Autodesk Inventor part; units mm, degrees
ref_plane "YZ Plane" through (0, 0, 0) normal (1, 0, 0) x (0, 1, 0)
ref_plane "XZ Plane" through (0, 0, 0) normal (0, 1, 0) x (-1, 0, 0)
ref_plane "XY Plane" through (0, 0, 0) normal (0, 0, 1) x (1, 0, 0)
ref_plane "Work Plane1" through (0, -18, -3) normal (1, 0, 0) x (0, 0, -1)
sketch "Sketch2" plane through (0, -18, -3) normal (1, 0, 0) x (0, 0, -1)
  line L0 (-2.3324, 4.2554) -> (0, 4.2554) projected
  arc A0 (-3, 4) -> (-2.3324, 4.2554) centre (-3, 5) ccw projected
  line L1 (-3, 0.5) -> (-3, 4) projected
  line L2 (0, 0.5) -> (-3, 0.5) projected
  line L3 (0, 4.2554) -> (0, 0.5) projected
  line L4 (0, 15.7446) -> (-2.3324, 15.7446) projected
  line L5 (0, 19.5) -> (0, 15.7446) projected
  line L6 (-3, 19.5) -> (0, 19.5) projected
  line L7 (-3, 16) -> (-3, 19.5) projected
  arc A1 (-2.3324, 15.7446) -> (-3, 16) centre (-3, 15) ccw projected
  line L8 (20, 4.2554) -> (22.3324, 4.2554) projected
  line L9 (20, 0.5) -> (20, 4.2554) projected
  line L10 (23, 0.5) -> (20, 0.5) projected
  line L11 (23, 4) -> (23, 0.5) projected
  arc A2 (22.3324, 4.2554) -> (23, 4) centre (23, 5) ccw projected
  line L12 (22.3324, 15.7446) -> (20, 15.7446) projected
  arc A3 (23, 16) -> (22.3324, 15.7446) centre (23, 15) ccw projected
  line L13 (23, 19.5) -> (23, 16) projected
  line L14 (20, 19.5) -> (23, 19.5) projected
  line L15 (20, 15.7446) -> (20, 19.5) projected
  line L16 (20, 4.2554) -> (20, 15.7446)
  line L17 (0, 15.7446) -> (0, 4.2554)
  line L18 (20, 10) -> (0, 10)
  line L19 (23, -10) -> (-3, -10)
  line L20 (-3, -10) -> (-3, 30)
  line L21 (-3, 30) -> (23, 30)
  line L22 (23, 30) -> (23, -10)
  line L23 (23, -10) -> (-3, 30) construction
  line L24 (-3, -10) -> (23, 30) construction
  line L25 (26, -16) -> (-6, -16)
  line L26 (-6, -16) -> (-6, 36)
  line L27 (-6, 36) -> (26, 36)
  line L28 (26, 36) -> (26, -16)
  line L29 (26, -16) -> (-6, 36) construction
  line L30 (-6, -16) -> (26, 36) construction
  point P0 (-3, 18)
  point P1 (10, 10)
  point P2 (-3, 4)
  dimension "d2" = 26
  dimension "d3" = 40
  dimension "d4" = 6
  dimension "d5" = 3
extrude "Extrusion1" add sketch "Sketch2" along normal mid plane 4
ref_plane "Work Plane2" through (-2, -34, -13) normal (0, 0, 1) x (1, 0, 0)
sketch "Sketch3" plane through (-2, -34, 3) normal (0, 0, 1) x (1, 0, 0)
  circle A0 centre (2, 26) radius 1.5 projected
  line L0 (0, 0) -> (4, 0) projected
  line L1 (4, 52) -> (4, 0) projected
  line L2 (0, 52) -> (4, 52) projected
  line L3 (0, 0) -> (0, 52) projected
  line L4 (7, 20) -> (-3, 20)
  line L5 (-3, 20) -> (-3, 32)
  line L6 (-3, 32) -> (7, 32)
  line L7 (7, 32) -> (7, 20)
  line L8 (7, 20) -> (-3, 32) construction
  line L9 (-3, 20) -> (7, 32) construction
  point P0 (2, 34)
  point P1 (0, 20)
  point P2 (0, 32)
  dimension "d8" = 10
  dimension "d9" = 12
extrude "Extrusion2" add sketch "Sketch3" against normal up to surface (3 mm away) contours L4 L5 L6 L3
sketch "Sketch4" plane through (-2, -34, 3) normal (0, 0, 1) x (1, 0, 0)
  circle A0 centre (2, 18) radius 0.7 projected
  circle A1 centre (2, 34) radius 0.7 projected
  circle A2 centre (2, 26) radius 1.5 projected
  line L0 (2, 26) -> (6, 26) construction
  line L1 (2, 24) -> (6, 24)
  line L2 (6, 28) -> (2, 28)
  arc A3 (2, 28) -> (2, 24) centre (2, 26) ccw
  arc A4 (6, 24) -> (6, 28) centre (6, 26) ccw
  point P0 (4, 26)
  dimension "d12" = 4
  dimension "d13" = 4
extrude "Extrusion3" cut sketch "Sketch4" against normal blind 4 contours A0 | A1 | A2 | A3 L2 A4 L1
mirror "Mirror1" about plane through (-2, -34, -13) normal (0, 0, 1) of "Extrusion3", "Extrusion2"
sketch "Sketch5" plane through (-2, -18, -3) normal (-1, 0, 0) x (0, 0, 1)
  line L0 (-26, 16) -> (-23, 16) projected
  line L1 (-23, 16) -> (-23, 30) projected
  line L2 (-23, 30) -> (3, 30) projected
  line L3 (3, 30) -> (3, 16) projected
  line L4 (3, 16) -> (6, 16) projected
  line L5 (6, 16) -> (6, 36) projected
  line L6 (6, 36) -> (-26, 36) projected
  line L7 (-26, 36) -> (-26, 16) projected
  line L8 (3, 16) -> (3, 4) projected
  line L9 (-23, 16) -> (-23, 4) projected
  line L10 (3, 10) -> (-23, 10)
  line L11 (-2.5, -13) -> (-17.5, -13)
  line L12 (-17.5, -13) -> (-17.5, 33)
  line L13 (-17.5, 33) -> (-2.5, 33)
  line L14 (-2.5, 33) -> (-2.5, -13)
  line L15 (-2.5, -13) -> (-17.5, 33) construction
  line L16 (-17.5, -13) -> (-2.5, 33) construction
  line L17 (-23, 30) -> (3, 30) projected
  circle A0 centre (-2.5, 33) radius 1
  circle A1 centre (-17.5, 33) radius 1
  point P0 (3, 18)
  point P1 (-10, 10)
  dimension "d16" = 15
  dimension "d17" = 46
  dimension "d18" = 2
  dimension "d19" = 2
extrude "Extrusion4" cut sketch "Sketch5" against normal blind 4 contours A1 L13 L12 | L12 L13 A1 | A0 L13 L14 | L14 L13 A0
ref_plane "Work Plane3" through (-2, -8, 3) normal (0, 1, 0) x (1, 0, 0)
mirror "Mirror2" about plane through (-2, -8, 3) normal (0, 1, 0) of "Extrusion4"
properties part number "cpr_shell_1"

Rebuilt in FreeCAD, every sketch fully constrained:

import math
import FreeCAD as App
import Part
import Sketcher

V = App.Vector
Q = App.Units.Quantity


def add_polygon(sketch, points):
    """Adds a closed chain of lines whose ends are joined by coincident constraints."""
    first, n = sketch.GeometryCount, len(points)
    for a, b in zip(points, points[1:] + points[:1]):
        sketch.addGeometry(Part.LineSegment(App.Vector(*a, 0), App.Vector(*b, 0)), False)
    for i in range(n):
        sketch.addConstraint(Sketcher.Constraint("Coincident", first + i, 2, first + (i + 1) % n, 1))

doc = App.newDocument("Part")
body = doc.addObject("PartDesign::Body", "Body")

# Sketch on YZ plane
sketch1 = doc.addObject("Sketcher::SketchObject", "Sketch")
body.addObject(sketch1)
sketch1.AttachmentSupport = (doc.YZ_Plane, [""])
sketch1.MapMode = "FlatFace"
add_polygon(sketch1, [(-34, 3), (-34, -29), (18, -29), (18, 3)])  # lines 0-3
add_polygon(sketch1, [(-28, 0), (12, 0), (12, -26), (-28, -26)])  # lines 4-7
sketch1.addConstraint([
    Sketcher.Constraint("Vertical", 0),
    Sketcher.Constraint("Horizontal", 1),
    Sketcher.Constraint("Vertical", 2),
    Sketcher.Constraint("Horizontal", 3),
    Sketcher.Constraint("Horizontal", 4),
    Sketcher.Constraint("Vertical", 5),
    Sketcher.Constraint("Horizontal", 6),
    Sketcher.Constraint("Vertical", 7),
    Sketcher.Constraint("PointOnObject", 4, 2, -1),
    Sketcher.Constraint("DistanceX", 4, 1, 4, 2, Q("40 mm")),
    Sketcher.Constraint("DistanceY", 5, 2, 5, 1, Q("26 mm")),
    Sketcher.Constraint("DistanceY", -1, 1, 2, 2, Q("3 mm")),
    Sketcher.Constraint("DistanceX", 4, 2, 2, 2, Q("6 mm")),
    Sketcher.Constraint("DistanceY", 1, 2, 5, 2, Q("3 mm")),
    Sketcher.Constraint("DistanceX", 0, 2, 6, 2, Q("6 mm")),
    Sketcher.Constraint("DistanceX", 0, 2, -1, 1, Q("34 mm")),
])
pad1 = doc.addObject("PartDesign::Pad", "Pad")
body.addObject(pad1)
pad1.Profile = sketch1
pad1.Length = 4
pad1.Midplane = True

# Sketch on XY plane
sketch2 = doc.addObject("Sketcher::SketchObject", "Sketch001")
body.addObject(sketch2)
sketch2.AttachmentSupport = (doc.XY_Plane, [""])
sketch2.MapMode = "FlatFace"
sketch2.AttachmentOffset = App.Placement(V(0, 0, 3), App.Rotation())
add_polygon(sketch2, [(-5, -14), (-2, -14), (-2, -2), (-5, -2)])  # lines 0-3
sketch2.addConstraint([
    Sketcher.Constraint("Horizontal", 0),
    Sketcher.Constraint("Vertical", 1),
    Sketcher.Constraint("Horizontal", 2),
    Sketcher.Constraint("Vertical", 3),
    Sketcher.Constraint("DistanceY", 1, 1, 1, 2, Q("12 mm")),
    Sketcher.Constraint("DistanceX", 0, 1, 0, 2, Q("3 mm")),
    Sketcher.Constraint("DistanceX", 0, 2, -1, 1, Q("2 mm")),
    Sketcher.Constraint("DistanceY", 0, 2, -1, 1, Q("14 mm")),
])
pad2 = doc.addObject("PartDesign::Pad", "Pad001")
body.addObject(pad2)
pad2.Profile = sketch2
pad2.Length = 3
pad2.Reversed = True

# Sketch on XY plane
sketch3 = doc.addObject("Sketcher::SketchObject", "Sketch002")
body.addObject(sketch3)
sketch3.AttachmentSupport = (doc.XY_Plane, [""])
sketch3.MapMode = "FlatFace"
sketch3.AttachmentOffset = App.Placement(V(0, 0, 3), App.Rotation())
sketch3.addGeometry([
    Part.Circle(V(0, -16, 0), V(0, 0, 1), 0.7),  # 0
    Part.Circle(V(0, 0, 0), V(0, 0, 1), 0.7),  # 1
    Part.ArcOfCircle(Part.Circle(V(0, -8, 0), V(0, 0, 1), 2), math.radians(90), math.radians(270)),  # 2
    Part.LineSegment(V(0, -10, 0), V(4, -10, 0)),  # 3
    Part.ArcOfCircle(Part.Circle(V(4, -8, 0), V(0, 0, 1), 2), math.radians(-90), math.radians(90)),  # 4
    Part.LineSegment(V(4, -6, 0), V(0, -6, 0)),  # 5
], False)
sketch3.addConstraint([
    Sketcher.Constraint("Tangent", 2, 2, 3, 1),
    Sketcher.Constraint("Tangent", 3, 2, 4, 1),
    Sketcher.Constraint("Tangent", 4, 2, 5, 1),
    Sketcher.Constraint("Tangent", 5, 2, 2, 1),
    Sketcher.Constraint("Horizontal", 3),
    Sketcher.Constraint("Horizontal", 5),
    Sketcher.Constraint("Coincident", 1, 3, -1, 1),
    Sketcher.Constraint("Equal", 0, 1),
    Sketcher.Constraint("PointOnObject", 0, 3, -2),
    Sketcher.Constraint("PointOnObject", 2, 3, -2),
    Sketcher.Constraint("Radius", 2, Q("2 mm")),
    Sketcher.Constraint("DistanceX", 3, 1, 3, 2, Q("4 mm")),
    Sketcher.Constraint("Diameter", 0, Q("1.4 mm")),
    Sketcher.Constraint("DistanceY", 0, 3, -1, 1, Q("16 mm")),
    Sketcher.Constraint("DistanceY", 2, 3, -1, 1, Q("8 mm")),
])
pocket1 = doc.addObject("PartDesign::Pocket", "Pocket")
body.addObject(pocket1)
pocket1.Profile = sketch3
pocket1.Length = 4
doc.recompute()

datumplane = doc.addObject("PartDesign::Plane", "DatumPlane")
body.addObject(datumplane)
datumplane.AttachmentSupport = (doc.XY_Plane, [""])
datumplane.MapMode = "FlatFace"
datumplane.AttachmentOffset = App.Placement(V(0, 0, -13), App.Rotation())
mirrored = doc.addObject("PartDesign::Mirrored", "Mirrored")
body.addObject(mirrored)
mirrored.Originals = [pocket1, pad2]
mirrored.MirrorPlane = (datumplane, [""])
body.Tip = mirrored

# Sketch on YZ plane
sketch4 = doc.addObject("Sketcher::SketchObject", "Sketch003")
body.addObject(sketch4)
sketch4.AttachmentSupport = (doc.YZ_Plane, [""])
sketch4.MapMode = "FlatFace"
sketch4.AttachmentOffset = App.Placement(V(0, 0, -2), App.Rotation())
sketch4.addGeometry([
    Part.Circle(V(15, -20.5, 0), V(0, 0, 1), 1),
    Part.Circle(V(15, -5.5, 0), V(0, 0, 1), 1),
], False)
sketch4.addConstraint([
    Sketcher.Constraint("Equal", 0, 1),
    Sketcher.Constraint("Vertical", 0, 3, 1, 3),
    Sketcher.Constraint("Diameter", 0, Q("2 mm")),
    Sketcher.Constraint("DistanceX", -1, 1, 0, 3, Q("15 mm")),
    Sketcher.Constraint("DistanceY", 0, 3, 1, 3, Q("15 mm")),
    Sketcher.Constraint("DistanceY", 0, 3, -1, 1, Q("20.5 mm")),
])
pocket2 = doc.addObject("PartDesign::Pocket", "Pocket001")
body.addObject(pocket2)
pocket2.Profile = sketch4
pocket2.Length = 4
pocket2.Reversed = True
doc.recompute()

datumplane2 = doc.addObject("PartDesign::Plane", "DatumPlane001")
body.addObject(datumplane2)
datumplane2.AttachmentSupport = (doc.XZ_Plane, [""])
datumplane2.MapMode = "FlatFace"
datumplane2.AttachmentOffset = App.Placement(V(0, 0, 8), App.Rotation())
mirrored2 = doc.addObject("PartDesign::Mirrored", "Mirrored001")
body.addObject(mirrored2)
mirrored2.Originals = [pocket2]
mirrored2.MirrorPlane = (datumplane2, [""])
body.Tip = mirrored2

doc.recompute()
